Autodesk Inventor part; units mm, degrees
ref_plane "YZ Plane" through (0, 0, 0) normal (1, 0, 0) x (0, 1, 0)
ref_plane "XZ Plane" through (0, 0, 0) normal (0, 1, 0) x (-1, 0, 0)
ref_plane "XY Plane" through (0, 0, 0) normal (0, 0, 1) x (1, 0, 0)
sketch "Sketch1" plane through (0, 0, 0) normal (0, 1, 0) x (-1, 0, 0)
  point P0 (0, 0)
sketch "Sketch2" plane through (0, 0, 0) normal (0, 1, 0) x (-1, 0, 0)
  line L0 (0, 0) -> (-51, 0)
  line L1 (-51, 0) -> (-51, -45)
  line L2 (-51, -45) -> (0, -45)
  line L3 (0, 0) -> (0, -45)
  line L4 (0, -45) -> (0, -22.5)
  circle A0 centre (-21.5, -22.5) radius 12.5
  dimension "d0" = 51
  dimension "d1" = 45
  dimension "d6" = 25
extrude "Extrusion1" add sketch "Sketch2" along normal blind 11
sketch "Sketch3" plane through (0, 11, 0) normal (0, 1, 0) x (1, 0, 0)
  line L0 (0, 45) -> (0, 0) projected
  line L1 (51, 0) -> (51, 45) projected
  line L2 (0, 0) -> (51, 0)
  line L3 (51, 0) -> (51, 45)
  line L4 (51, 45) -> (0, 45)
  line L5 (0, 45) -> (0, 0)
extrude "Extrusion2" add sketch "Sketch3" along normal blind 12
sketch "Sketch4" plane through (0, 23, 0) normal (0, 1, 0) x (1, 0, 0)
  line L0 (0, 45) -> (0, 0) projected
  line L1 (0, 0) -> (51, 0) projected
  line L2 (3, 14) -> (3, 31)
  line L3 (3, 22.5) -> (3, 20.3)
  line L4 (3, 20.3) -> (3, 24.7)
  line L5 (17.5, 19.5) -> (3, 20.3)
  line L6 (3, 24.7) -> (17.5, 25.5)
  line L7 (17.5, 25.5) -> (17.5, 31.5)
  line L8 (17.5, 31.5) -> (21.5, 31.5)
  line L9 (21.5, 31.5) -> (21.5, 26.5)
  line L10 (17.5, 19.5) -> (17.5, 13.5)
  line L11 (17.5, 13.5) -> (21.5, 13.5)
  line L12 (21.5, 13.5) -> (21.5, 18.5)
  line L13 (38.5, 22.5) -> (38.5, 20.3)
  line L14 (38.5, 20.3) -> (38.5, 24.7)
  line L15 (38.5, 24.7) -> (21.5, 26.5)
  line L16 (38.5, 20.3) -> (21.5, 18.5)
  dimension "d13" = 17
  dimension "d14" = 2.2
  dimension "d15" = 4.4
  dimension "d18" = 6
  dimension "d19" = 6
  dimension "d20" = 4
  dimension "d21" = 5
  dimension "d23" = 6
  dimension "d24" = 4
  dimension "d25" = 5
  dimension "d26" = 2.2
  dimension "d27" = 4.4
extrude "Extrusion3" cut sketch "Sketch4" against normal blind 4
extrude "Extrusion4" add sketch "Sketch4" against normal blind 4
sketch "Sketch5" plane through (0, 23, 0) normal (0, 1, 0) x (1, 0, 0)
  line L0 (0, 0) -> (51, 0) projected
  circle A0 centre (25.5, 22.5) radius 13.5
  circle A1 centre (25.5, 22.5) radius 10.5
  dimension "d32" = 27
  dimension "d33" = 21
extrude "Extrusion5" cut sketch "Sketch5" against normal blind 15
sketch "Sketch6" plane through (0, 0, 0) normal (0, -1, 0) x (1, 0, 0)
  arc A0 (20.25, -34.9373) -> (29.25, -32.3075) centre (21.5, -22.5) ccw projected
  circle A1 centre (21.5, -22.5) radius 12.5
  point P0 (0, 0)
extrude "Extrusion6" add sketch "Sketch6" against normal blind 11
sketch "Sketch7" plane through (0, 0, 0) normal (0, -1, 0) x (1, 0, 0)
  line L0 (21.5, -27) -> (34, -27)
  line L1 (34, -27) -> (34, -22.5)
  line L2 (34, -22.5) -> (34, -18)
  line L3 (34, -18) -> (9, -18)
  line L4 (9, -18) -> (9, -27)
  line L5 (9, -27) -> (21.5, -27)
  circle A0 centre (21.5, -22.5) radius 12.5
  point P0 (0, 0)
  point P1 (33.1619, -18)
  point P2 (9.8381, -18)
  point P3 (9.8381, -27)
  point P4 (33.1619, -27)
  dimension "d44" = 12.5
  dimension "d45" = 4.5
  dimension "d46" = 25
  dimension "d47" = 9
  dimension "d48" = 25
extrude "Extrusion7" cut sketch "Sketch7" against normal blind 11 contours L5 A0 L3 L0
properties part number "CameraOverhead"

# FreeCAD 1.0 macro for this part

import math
import FreeCAD as App
import Part
import Sketcher
Q = App.Units.Quantity

doc = App.newDocument("Part")
body = doc.addObject("PartDesign::Body", "Body")

# Sketch on XZ plane
sketch1 = body.newObject("Sketcher::SketchObject", "Sketch")
sketch1.AttachmentSupport = (doc.getObject("XZ_Plane"), [""])
sketch1.MapMode = "FlatFace"
sketch1.addGeometry([
    Part.LineSegment(App.Vector(0, -45, 0), App.Vector(0, 0, 0)),  # 0
    Part.LineSegment(App.Vector(0, 0, 0), App.Vector(51, 0, 0)),  # 1
    Part.LineSegment(App.Vector(51, 0, 0), App.Vector(51, -45, 0)),  # 2
    Part.LineSegment(App.Vector(51, -45, 0), App.Vector(0, -45, 0)),  # 3
    Part.Circle(App.Vector(21.5, -22.5, 0), App.Vector(0, 0, 1), 12.5),  # 4
], False)
sketch1.addConstraint([
    Sketcher.Constraint("Coincident", 0, 2, 1, 1),
    Sketcher.Constraint("Coincident", 1, 2, 2, 1),
    Sketcher.Constraint("Coincident", 2, 2, 3, 1),
    Sketcher.Constraint("Coincident", 3, 2, 0, 1),
    Sketcher.Constraint("Vertical", 0),
    Sketcher.Constraint("Horizontal", 1),
    Sketcher.Constraint("Vertical", 2),
    Sketcher.Constraint("Horizontal", 3),
    Sketcher.Constraint("Coincident", 0, 2, -1, 1),
    Sketcher.Constraint("Diameter", 4, Q("25 mm")),
    Sketcher.Constraint("DistanceX", 1, 1, 1, 2, Q("51 mm")),
    Sketcher.Constraint("DistanceY", 0, 1, 0, 2, Q("45 mm")),
    Sketcher.Constraint("DistanceX", -1, 1, 4, 3, Q("21.5 mm")),
    Sketcher.Constraint("DistanceY", 4, 3, -1, 1, Q("22.5 mm")),
])
pad1 = body.newObject("PartDesign::Pad", "Pad")
pad1.Profile = sketch1
pad1.Length = 11
pad1.Reversed = True

# Sketch on XZ plane
sketch2 = body.newObject("Sketcher::SketchObject", "Sketch001")
sketch2.AttachmentSupport = (doc.getObject("XZ_Plane"), [""])
sketch2.MapMode = "FlatFace"
sketch2.AttachmentOffset = App.Placement(App.Vector(0, 0, -11), App.Rotation())
sketch2.addGeometry([
    Part.LineSegment(App.Vector(51, -45, 0), App.Vector(0, -45, 0)),
    Part.LineSegment(App.Vector(0, -45, 0), App.Vector(0, 0, 0)),
    Part.LineSegment(App.Vector(0, 0, 0), App.Vector(51, 0, 0)),
    Part.LineSegment(App.Vector(51, 0, 0), App.Vector(51, -45, 0)),
], False)
sketch2.addConstraint([
    Sketcher.Constraint("Coincident", 0, 2, 1, 1),
    Sketcher.Constraint("Coincident", 1, 2, 2, 1),
    Sketcher.Constraint("Coincident", 2, 2, 3, 1),
    Sketcher.Constraint("Coincident", 3, 2, 0, 1),
    Sketcher.Constraint("Horizontal", 0),
    Sketcher.Constraint("Vertical", 1),
    Sketcher.Constraint("Horizontal", 2),
    Sketcher.Constraint("Vertical", 3),
    Sketcher.Constraint("Coincident", 1, 2, -1, 1),
    Sketcher.Constraint("DistanceX", 0, 2, 0, 1, Q("51 mm")),
    Sketcher.Constraint("DistanceY", 1, 1, 1, 2, Q("45 mm")),
])
pad2 = body.newObject("PartDesign::Pad", "Pad001")
pad2.Profile = sketch2
pad2.Length = 12
pad2.Reversed = True

# Sketch on XZ plane
sketch3 = body.newObject("Sketcher::SketchObject", "Sketch002")
sketch3.AttachmentSupport = (doc.getObject("XZ_Plane"), [""])
sketch3.MapMode = "FlatFace"
sketch3.AttachmentOffset = App.Placement(App.Vector(0, 0, -23), App.Rotation())
sketch3.addGeometry([
    Part.LineSegment(App.Vector(3, -24.7, 0), App.Vector(3, -20.3, 0)),  # 0
    Part.LineSegment(App.Vector(3, -20.3, 0), App.Vector(17.5, -19.5, 0)),  # 1
    Part.LineSegment(App.Vector(17.5, -19.5, 0), App.Vector(17.5, -13.5, 0)),  # 2
    Part.LineSegment(App.Vector(17.5, -13.5, 0), App.Vector(21.5, -13.5, 0)),  # 3
    Part.LineSegment(App.Vector(21.5, -13.5, 0), App.Vector(21.5, -18.5, 0)),  # 4
    Part.LineSegment(App.Vector(21.5, -18.5, 0), App.Vector(38.5, -20.3, 0)),  # 5
    Part.LineSegment(App.Vector(38.5, -20.3, 0), App.Vector(38.5, -24.7, 0)),  # 6
    Part.LineSegment(App.Vector(38.5, -24.7, 0), App.Vector(21.5, -26.5, 0)),  # 7
    Part.LineSegment(App.Vector(21.5, -26.5, 0), App.Vector(21.5, -31.5, 0)),  # 8
    Part.LineSegment(App.Vector(21.5, -31.5, 0), App.Vector(17.5, -31.5, 0)),  # 9
    Part.LineSegment(App.Vector(17.5, -31.5, 0), App.Vector(17.5, -25.5, 0)),  # 10
    Part.LineSegment(App.Vector(17.5, -25.5, 0), App.Vector(3, -24.7, 0)),  # 11
], False)
sketch3.addConstraint([
    Sketcher.Constraint("Coincident", 0, 2, 1, 1),
    Sketcher.Constraint("Coincident", 1, 2, 2, 1),
    Sketcher.Constraint("Coincident", 2, 2, 3, 1),
    Sketcher.Constraint("Coincident", 3, 2, 4, 1),
    Sketcher.Constraint("Coincident", 4, 2, 5, 1),
    Sketcher.Constraint("Coincident", 5, 2, 6, 1),
    Sketcher.Constraint("Coincident", 6, 2, 7, 1),
    Sketcher.Constraint("Coincident", 7, 2, 8, 1),
    Sketcher.Constraint("Coincident", 8, 2, 9, 1),
    Sketcher.Constraint("Coincident", 9, 2, 10, 1),
    Sketcher.Constraint("Coincident", 10, 2, 11, 1),
    Sketcher.Constraint("Coincident", 11, 2, 0, 1),
    Sketcher.Constraint("Vertical", 0),
    Sketcher.Constraint("Vertical", 2),
    Sketcher.Constraint("Horizontal", 3),
    Sketcher.Constraint("Vertical", 4),
    Sketcher.Constraint("Vertical", 6),
    Sketcher.Constraint("Vertical", 8),
    Sketcher.Constraint("Horizontal", 9),
    Sketcher.Constraint("Vertical", 10),
    Sketcher.Constraint("Horizontal", 0, 2, 5, 2),
    Sketcher.Constraint("Horizontal", 6, 2, 11, 2),
    Sketcher.Constraint("Vertical", 4, 2, 7, 2),
    Sketcher.Constraint("Vertical", 2, 2, 9, 2),
    Sketcher.Constraint("Equal", 4, 8),
    Sketcher.Constraint("Equal", 2, 10),
    Sketcher.Constraint("Equal", 5, 7),
    Sketcher.Constraint("DistanceX", 3, 1, 3, 2, Q("4 mm")),
    Sketcher.Constraint("DistanceY", 2, 1, 2, 2, Q("6 mm")),
    Sketcher.Constraint("DistanceY", 4, 2, 4, 1, Q("5 mm")),
    Sketcher.Constraint("DistanceY", 0, 1, 0, 2, Q("4.4 mm")),
    Sketcher.Constraint("DistanceX", 4, 2, 5, 2, Q("17 mm")),
    Sketcher.Constraint("DistanceY", 10, 2, 1, 2, Q("6 mm")),
    Sketcher.Constraint("DistanceX", -1, 1, 0, 2, Q("3 mm")),
    Sketcher.Constraint("DistanceY", 0, 2, -1, 1, Q("20.3 mm")),
    Sketcher.Constraint("DistanceX", -1, 1, 1, 2, Q("17.5 mm")),
])
pocket1 = body.newObject("PartDesign::Pocket", "Pocket")
pocket1.Profile = sketch3
pocket1.Length = 4
pocket1.Reversed = True

# Sketch on XZ plane
sketch4 = body.newObject("Sketcher::SketchObject", "Sketch003")
sketch4.AttachmentSupport = (doc.getObject("XZ_Plane"), [""])
sketch4.MapMode = "FlatFace"
sketch4.AttachmentOffset = App.Placement(App.Vector(0, 0, -23), App.Rotation())
sketch4.addGeometry([
    Part.LineSegment(App.Vector(3, -24.7, 0), App.Vector(3, -20.3, 0)),  # 0
    Part.LineSegment(App.Vector(3, -20.3, 0), App.Vector(17.5, -19.5, 0)),  # 1
    Part.LineSegment(App.Vector(17.5, -19.5, 0), App.Vector(17.5, -13.5, 0)),  # 2
    Part.LineSegment(App.Vector(17.5, -13.5, 0), App.Vector(21.5, -13.5, 0)),  # 3
    Part.LineSegment(App.Vector(21.5, -13.5, 0), App.Vector(21.5, -18.5, 0)),  # 4
    Part.LineSegment(App.Vector(21.5, -18.5, 0), App.Vector(38.5, -20.3, 0)),  # 5
    Part.LineSegment(App.Vector(38.5, -20.3, 0), App.Vector(38.5, -24.7, 0)),  # 6
    Part.LineSegment(App.Vector(38.5, -24.7, 0), App.Vector(21.5, -26.5, 0)),  # 7
    Part.LineSegment(App.Vector(21.5, -26.5, 0), App.Vector(21.5, -31.5, 0)),  # 8
    Part.LineSegment(App.Vector(21.5, -31.5, 0), App.Vector(17.5, -31.5, 0)),  # 9
    Part.LineSegment(App.Vector(17.5, -31.5, 0), App.Vector(17.5, -25.5, 0)),  # 10
    Part.LineSegment(App.Vector(17.5, -25.5, 0), App.Vector(3, -24.7, 0)),  # 11
], False)
sketch4.addConstraint([
    Sketcher.Constraint("Coincident", 0, 2, 1, 1),
    Sketcher.Constraint("Coincident", 1, 2, 2, 1),
    Sketcher.Constraint("Coincident", 2, 2, 3, 1),
    Sketcher.Constraint("Coincident", 3, 2, 4, 1),
    Sketcher.Constraint("Coincident", 4, 2, 5, 1),
    Sketcher.Constraint("Coincident", 5, 2, 6, 1),
    Sketcher.Constraint("Coincident", 6, 2, 7, 1),
    Sketcher.Constraint("Coincident", 7, 2, 8, 1),
    Sketcher.Constraint("Coincident", 8, 2, 9, 1),
    Sketcher.Constraint("Coincident", 9, 2, 10, 1),
    Sketcher.Constraint("Coincident", 10, 2, 11, 1),
    Sketcher.Constraint("Coincident", 11, 2, 0, 1),
    Sketcher.Constraint("Vertical", 0),
    Sketcher.Constraint("Vertical", 2),
    Sketcher.Constraint("Horizontal", 3),
    Sketcher.Constraint("Vertical", 4),
    Sketcher.Constraint("Vertical", 6),
    Sketcher.Constraint("Vertical", 8),
    Sketcher.Constraint("Horizontal", 9),
    Sketcher.Constraint("Vertical", 10),
    Sketcher.Constraint("Horizontal", 0, 2, 5, 2),
    Sketcher.Constraint("Horizontal", 6, 2, 11, 2),
    Sketcher.Constraint("Vertical", 4, 2, 7, 2),
    Sketcher.Constraint("Vertical", 2, 2, 9, 2),
    Sketcher.Constraint("Equal", 4, 8),
    Sketcher.Constraint("Equal", 2, 10),
    Sketcher.Constraint("Equal", 5, 7),
    Sketcher.Constraint("DistanceX", 3, 1, 3, 2, Q("4 mm")),
    Sketcher.Constraint("DistanceY", 2, 1, 2, 2, Q("6 mm")),
    Sketcher.Constraint("DistanceY", 4, 2, 4, 1, Q("5 mm")),
    Sketcher.Constraint("DistanceY", 0, 1, 0, 2, Q("4.4 mm")),
    Sketcher.Constraint("DistanceX", 4, 2, 5, 2, Q("17 mm")),
    Sketcher.Constraint("DistanceY", 10, 2, 1, 2, Q("6 mm")),
    Sketcher.Constraint("DistanceX", -1, 1, 0, 2, Q("3 mm")),
    Sketcher.Constraint("DistanceY", 0, 2, -1, 1, Q("20.3 mm")),
    Sketcher.Constraint("DistanceX", -1, 1, 1, 2, Q("17.5 mm")),
])
pad3 = body.newObject("PartDesign::Pad", "Pad002")
pad3.Profile = sketch4
pad3.Length = 4

# Sketch on XZ plane
sketch5 = body.newObject("Sketcher::SketchObject", "Sketch004")
sketch5.AttachmentSupport = (doc.getObject("XZ_Plane"), [""])
sketch5.MapMode = "FlatFace"
sketch5.AttachmentOffset = App.Placement(App.Vector(0, 0, -23), App.Rotation())
sketch5.addGeometry([
    Part.Circle(App.Vector(25.5, -22.5, 0), App.Vector(0, 0, 1), 13.5),
    Part.Circle(App.Vector(25.5, -22.5, 0), App.Vector(0, 0, 1), 10.5),
], False)
sketch5.addConstraint([
    Sketcher.Constraint("Coincident", 1, 3, 0, 3),
    Sketcher.Constraint("Diameter", 0, Q("27 mm")),
    Sketcher.Constraint("Diameter", 1, Q("21 mm")),
    Sketcher.Constraint("DistanceX", -1, 1, 0, 3, Q("25.5 mm")),
    Sketcher.Constraint("DistanceY", 0, 3, -1, 1, Q("22.5 mm")),
])
pocket2 = body.newObject("PartDesign::Pocket", "Pocket001")
pocket2.Profile = sketch5
pocket2.Length = 15
pocket2.Reversed = True

# Sketch on XZ plane
sketch6 = body.newObject("Sketcher::SketchObject", "Sketch005")
sketch6.AttachmentSupport = (doc.getObject("XZ_Plane"), [""])
sketch6.MapMode = "FlatFace"
sketch6.addGeometry([
    Part.ArcOfCircle(Part.Circle(App.Vector(21.5, -22.5, 0), App.Vector(0, 0, 1), 12.5), math.radians(-51.683801), math.radians(264.26081)),
    Part.ArcOfCircle(Part.Circle(App.Vector(21.5, -22.5, 0), App.Vector(0, 0, 1), 12.5), math.radians(-95.73919), math.radians(-51.683801)),
], False)
sketch6.addConstraint([
    Sketcher.Constraint("Tangent", 0, 1, 1, 2),
    Sketcher.Constraint("Coincident", 1, 1, 0, 2),
    Sketcher.Constraint("Radius", 0, Q("12.5 mm")),
    Sketcher.Constraint("DistanceX", 1, 1, 0, 1, Q("9 mm")),
    Sketcher.Constraint("DistanceX", -1, 1, 0, 3, Q("21.5 mm")),
    Sketcher.Constraint("DistanceY", 0, 3, -1, 1, Q("22.5 mm")),
    Sketcher.Constraint("DistanceX", -1, 1, 0, 1, Q("29.25 mm")),
])
pad4 = body.newObject("PartDesign::Pad", "Pad003")
pad4.Profile = sketch6
pad4.Length = 11
pad4.Reversed = True

# Sketch on XZ plane
sketch7 = body.newObject("Sketcher::SketchObject", "Sketch006")
sketch7.AttachmentSupport = (doc.getObject("XZ_Plane"), [""])
sketch7.MapMode = "FlatFace"
sketch7.addGeometry([
    Part.LineSegment(App.Vector(9.838096, -27, 0), App.Vector(33.161904, -27, 0)),
    Part.ArcOfCircle(Part.Circle(App.Vector(21.5, -22.5, 0), App.Vector(0, 0, 1), 12.5), math.radians(-21.100196), math.radians(21.100196)),
    Part.LineSegment(App.Vector(33.161904, -18, 0), App.Vector(9.838096, -18, 0)),
    Part.ArcOfCircle(Part.Circle(App.Vector(21.5, -22.5, 0), App.Vector(0, 0, 1), 12.5), math.radians(158.899804), math.radians(201.100196)),
], False)
sketch7.addConstraint([
    Sketcher.Constraint("Coincident", 0, 2, 1, 1),
    Sketcher.Constraint("Coincident", 1, 2, 2, 1),
    Sketcher.Constraint("Coincident", 2, 2, 3, 1),
    Sketcher.Constraint("Coincident", 3, 2, 0, 1),
    Sketcher.Constraint("Horizontal", 0),
    Sketcher.Constraint("Horizontal", 2),
    Sketcher.Constraint("Coincident", 3, 3, 1, 3),
    Sketcher.Constraint("Equal", 1, 3),
    Sketcher.Constraint("Vertical", 0, 2, 1, 2),
    Sketcher.Constraint("Radius", 1, Q("12.5 mm")),
    Sketcher.Constraint("DistanceY", 0, 2, 1, 2, Q("9 mm")),
    Sketcher.Constraint("DistanceY", 0, 2, -1, 1, Q("27 mm")),
    Sketcher.Constraint("DistanceX", -1, 1, 1, 3, Q("21.5 mm")),
])
pocket3 = body.newObject("PartDesign::Pocket", "Pocket002")
pocket3.Profile = sketch7
pocket3.Length = 11

doc.recompute()
